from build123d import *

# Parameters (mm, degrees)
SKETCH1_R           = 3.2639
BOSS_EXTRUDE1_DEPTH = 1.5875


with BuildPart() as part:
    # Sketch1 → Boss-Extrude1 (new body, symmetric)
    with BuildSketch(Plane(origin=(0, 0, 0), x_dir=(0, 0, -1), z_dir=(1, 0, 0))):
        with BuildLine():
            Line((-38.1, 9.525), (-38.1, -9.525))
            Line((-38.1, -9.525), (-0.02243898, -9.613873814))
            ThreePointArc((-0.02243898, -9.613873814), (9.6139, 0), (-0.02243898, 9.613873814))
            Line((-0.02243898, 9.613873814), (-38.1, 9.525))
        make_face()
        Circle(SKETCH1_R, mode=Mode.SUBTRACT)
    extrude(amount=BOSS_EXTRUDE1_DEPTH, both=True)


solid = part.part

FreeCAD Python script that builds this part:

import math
import FreeCAD as App
import Part
import Sketcher

V = App.Vector
Q = App.Units.Quantity

doc = App.newDocument("Part")
body = doc.addObject("PartDesign::Body", "Body")

# Sketch on YZ plane
sketch1 = body.newObject("Sketcher::SketchObject", "Sketch")
sketch1.AttachmentSupport = (doc.getObject("YZ_Plane"), [""])
sketch1.MapMode = "FlatFace"
sketch1.addGeometry([
    Part.LineSegment(V(9.525, 38.1, 0), V(-9.525, 38.1, 0)),  # 0
    Part.LineSegment(V(-9.525, 38.1, 0), V(-9.613874, 0.022439, 0)),  # 1
    Part.ArcOfCircle(Part.Circle(V(0, 0, 0), V(0, 0, 1), 9.6139), math.radians(179.866271), math.radians(360.133729)),  # 2
    Part.LineSegment(V(9.613874, 0.022439, 0), V(9.525, 38.1, 0)),  # 3
    Part.Circle(V(0, 0, 0), V(0, 0, 1), 3.2639),  # 4
], False)
sketch1.addConstraint([
    Sketcher.Constraint("Coincident", 0, 2, 1, 1),
    Sketcher.Constraint("Tangent", 1, 2, 2, 1),
    Sketcher.Constraint("Tangent", 2, 2, 3, 1),
    Sketcher.Constraint("Coincident", 3, 2, 0, 1),
    Sketcher.Constraint("Horizontal", 0),
    Sketcher.Constraint("Coincident", 2, 3, -1, 1),
    Sketcher.Constraint("Coincident", 4, 3, -1, 1),
    Sketcher.Constraint("Horizontal", 1, 2, 2, 2),
    Sketcher.Constraint("Diameter", 4, Q("0.257 in")),
    Sketcher.Constraint("DistanceX", 0, 2, 0, 1, Q("0.75 in")),
    Sketcher.Constraint("DistanceY", -1, 1, 0, 2, Q("1.5 in")),
    Sketcher.Constraint("Radius", 2, Q("0.3785 in")),
])
pad1 = body.newObject("PartDesign::Pad", "Pad")
pad1.Profile = sketch1
pad1.Length = Q("0.125 in")
pad1.Midplane = True

doc.recompute()
